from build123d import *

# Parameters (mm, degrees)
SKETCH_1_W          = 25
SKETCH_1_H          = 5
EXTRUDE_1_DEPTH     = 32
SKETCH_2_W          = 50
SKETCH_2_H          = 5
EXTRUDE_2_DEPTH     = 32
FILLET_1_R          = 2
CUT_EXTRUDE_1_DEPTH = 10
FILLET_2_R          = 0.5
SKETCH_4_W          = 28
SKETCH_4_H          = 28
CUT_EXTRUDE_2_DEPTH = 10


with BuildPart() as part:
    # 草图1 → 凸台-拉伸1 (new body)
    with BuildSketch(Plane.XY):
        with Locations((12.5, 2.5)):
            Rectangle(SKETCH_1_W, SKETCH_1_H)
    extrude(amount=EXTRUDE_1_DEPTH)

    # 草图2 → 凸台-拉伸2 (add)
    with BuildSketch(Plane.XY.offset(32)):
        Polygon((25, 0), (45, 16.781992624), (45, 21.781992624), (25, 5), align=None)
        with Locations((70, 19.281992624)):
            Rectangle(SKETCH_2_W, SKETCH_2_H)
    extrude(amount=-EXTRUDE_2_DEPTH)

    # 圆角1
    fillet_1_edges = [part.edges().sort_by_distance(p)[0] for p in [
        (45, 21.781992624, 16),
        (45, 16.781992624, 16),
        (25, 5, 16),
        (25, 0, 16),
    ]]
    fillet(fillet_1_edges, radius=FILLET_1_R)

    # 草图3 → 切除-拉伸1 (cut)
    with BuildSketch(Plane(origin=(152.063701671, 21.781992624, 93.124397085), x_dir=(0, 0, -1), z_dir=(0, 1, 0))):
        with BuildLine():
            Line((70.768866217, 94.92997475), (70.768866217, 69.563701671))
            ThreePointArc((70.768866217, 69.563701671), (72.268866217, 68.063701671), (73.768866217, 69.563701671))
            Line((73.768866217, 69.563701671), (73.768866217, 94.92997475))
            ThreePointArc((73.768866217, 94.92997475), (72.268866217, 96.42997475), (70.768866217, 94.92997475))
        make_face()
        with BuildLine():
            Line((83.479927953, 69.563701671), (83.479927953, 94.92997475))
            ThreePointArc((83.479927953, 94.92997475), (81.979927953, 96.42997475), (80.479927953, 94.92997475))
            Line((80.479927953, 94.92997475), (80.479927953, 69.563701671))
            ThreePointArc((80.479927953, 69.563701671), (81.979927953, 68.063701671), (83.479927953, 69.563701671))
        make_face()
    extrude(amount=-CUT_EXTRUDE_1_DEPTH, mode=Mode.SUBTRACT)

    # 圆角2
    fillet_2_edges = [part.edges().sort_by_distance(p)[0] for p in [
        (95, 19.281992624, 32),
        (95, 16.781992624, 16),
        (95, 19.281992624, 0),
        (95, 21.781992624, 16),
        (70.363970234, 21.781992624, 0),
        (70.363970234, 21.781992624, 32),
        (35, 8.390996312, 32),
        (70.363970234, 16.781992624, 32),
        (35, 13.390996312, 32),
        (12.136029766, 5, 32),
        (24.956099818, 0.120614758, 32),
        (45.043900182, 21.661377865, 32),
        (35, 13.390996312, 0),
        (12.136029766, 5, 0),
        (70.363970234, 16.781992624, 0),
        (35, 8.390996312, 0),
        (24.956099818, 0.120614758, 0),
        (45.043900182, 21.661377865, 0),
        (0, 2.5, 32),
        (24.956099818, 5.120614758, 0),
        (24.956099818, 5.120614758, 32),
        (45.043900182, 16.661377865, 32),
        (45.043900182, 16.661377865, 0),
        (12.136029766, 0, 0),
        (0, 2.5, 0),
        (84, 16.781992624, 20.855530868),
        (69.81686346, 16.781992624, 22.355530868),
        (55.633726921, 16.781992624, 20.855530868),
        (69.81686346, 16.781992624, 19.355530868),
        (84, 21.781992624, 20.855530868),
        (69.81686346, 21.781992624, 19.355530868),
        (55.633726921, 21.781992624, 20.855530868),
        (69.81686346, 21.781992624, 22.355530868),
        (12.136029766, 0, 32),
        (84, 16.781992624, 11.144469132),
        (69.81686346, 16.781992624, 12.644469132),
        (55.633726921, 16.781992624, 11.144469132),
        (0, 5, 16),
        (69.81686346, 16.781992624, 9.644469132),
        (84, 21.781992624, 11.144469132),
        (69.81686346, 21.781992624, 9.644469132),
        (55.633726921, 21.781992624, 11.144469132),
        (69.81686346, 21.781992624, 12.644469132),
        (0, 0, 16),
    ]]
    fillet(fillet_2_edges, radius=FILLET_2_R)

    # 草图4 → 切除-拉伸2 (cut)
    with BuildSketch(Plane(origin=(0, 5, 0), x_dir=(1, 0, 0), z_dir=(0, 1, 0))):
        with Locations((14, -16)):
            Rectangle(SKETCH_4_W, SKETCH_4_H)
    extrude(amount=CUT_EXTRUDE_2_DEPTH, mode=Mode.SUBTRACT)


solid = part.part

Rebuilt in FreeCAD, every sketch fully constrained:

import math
import FreeCAD as App
import Part
import Sketcher

V = App.Vector
Q = App.Units.Quantity


def edges_at(feature, points):
    """Names of the edges that pass closest to the given points."""
    edges = feature.Shape.Edges
    near = lambda p: min(range(len(edges)), key=lambda i: edges[i].distToShape(Part.Vertex(*p))[0])
    return sorted({f"Edge{near(p) + 1}" for p in points})

doc = App.newDocument("Part")
body = doc.addObject("PartDesign::Body", "Body")

# Sketch on XY plane
sketch1 = body.newObject("Sketcher::SketchObject", "Sketch")
sketch1.AttachmentSupport = (doc.getObject("XY_Plane"), [""])
sketch1.MapMode = "FlatFace"
sketch1.addGeometry(Part.LineSegment(V(0, 5, 0), V(0, 0, 0)), False)
sketch1.addGeometry(Part.LineSegment(V(0, 0, 0), V(25, 0, 0)), False)
sketch1.addGeometry(Part.LineSegment(V(25, 0, 0), V(25, 5, 0)), False)
sketch1.addGeometry(Part.LineSegment(V(25, 5, 0), V(0, 5, 0)), False)
sketch1.addConstraint(Sketcher.Constraint("Coincident", 0, 2, 1, 1))
sketch1.addConstraint(Sketcher.Constraint("Coincident", 1, 2, 2, 1))
sketch1.addConstraint(Sketcher.Constraint("Coincident", 2, 2, 3, 1))
sketch1.addConstraint(Sketcher.Constraint("Coincident", 3, 2, 0, 1))
sketch1.addConstraint(Sketcher.Constraint("Vertical", 0))
sketch1.addConstraint(Sketcher.Constraint("Horizontal", 1))
sketch1.addConstraint(Sketcher.Constraint("Vertical", 2))
sketch1.addConstraint(Sketcher.Constraint("Horizontal", 3))
sketch1.addConstraint(Sketcher.Constraint("Coincident", 0, 2, -1, 1))
sketch1.addConstraint(Sketcher.Constraint("DistanceX", 1, 1, 1, 2, 25.0))
sketch1.addConstraint(Sketcher.Constraint("DistanceY", 0, 2, 0, 1, 5.0))
pad1 = body.newObject("PartDesign::Pad", "Pad")
pad1.Profile = sketch1
pad1.Length = 32

# Sketch on XY plane
sketch2 = body.newObject("Sketcher::SketchObject", "Sketch001")
sketch2.AttachmentSupport = (doc.getObject("XY_Plane"), [""])
sketch2.MapMode = "FlatFace"
sketch2.AttachmentOffset = App.Placement(V(0, 0, 32), App.Rotation())
sketch2.addGeometry(Part.LineSegment(V(25, 0, 0), V(45, 17, 0)), False)
sketch2.addGeometry(Part.LineSegment(V(45, 17, 0), V(95, 17, 0)), False)
sketch2.addGeometry(Part.LineSegment(V(95, 17, 0), V(95, 22, 0)), False)
sketch2.addGeometry(Part.LineSegment(V(95, 22, 0), V(45, 22, 0)), False)
sketch2.addGeometry(Part.LineSegment(V(45, 22, 0), V(25, 5, 0)), False)
sketch2.addGeometry(Part.LineSegment(V(25, 5, 0), V(25, 0, 0)), False)
sketch2.addConstraint(Sketcher.Constraint("Coincident", 0, 2, 1, 1))
sketch2.addConstraint(Sketcher.Constraint("Coincident", 1, 2, 2, 1))
sketch2.addConstraint(Sketcher.Constraint("Coincident", 2, 2, 3, 1))
sketch2.addConstraint(Sketcher.Constraint("Coincident", 3, 2, 4, 1))
sketch2.addConstraint(Sketcher.Constraint("Coincident", 4, 2, 5, 1))
sketch2.addConstraint(Sketcher.Constraint("Coincident", 5, 2, 0, 1))
sketch2.addConstraint(Sketcher.Constraint("Horizontal", 1))
sketch2.addConstraint(Sketcher.Constraint("Vertical", 2))
sketch2.addConstraint(Sketcher.Constraint("Horizontal", 3))
sketch2.addConstraint(Sketcher.Constraint("Vertical", 5))
sketch2.addConstraint(Sketcher.Constraint("PointOnObject", 5, 2, -1))
sketch2.addConstraint(Sketcher.Constraint("Parallel", 0, 4))
sketch2.addConstraint(Sketcher.Constraint("Vertical", 0, 2, 3, 2))
sketch2.addConstraint(Sketcher.Constraint("DistanceX", 1, 1, 1, 2, 50.0))
sketch2.addConstraint(Sketcher.Constraint("DistanceY", 2, 1, 2, 2, 5.0))
sketch2.addConstraint(Sketcher.Constraint("Angle", 0, Q("40 deg")))
sketch2.addConstraint(Sketcher.Constraint("DistanceX", -1, 1, 0, 2, 45.0))
sketch2.addConstraint(Sketcher.Constraint("DistanceX", -1, 1, 4, 2, 25.0))
pad2 = body.newObject("PartDesign::Pad", "Pad001")
pad2.Profile = sketch2
pad2.Length = 32
pad2.Reversed = True
doc.recompute()

fillet = body.newObject("PartDesign::Fillet", "Fillet")
fillet.Base = (pad2, edges_at(pad2, [
    (45, 21.782, 16),
    (45, 16.782, 16),
    (25, 5, 16),
    (25, 0, 16),
]))
fillet.Radius = 2

# Sketch on XZ plane
sketch3 = body.newObject("Sketcher::SketchObject", "Sketch002")
sketch3.AttachmentSupport = (doc.getObject("XZ_Plane"), [""])
sketch3.MapMode = "FlatFace"
sketch3.AttachmentOffset = App.Placement(V(0, 0, -21.781993), App.Rotation())
sketch3.addGeometry(Part.LineSegment(V(57.1, 22.4, 0), V(82.5, 22.4, 0)), False)
sketch3.addGeometry(Part.ArcOfCircle(Part.Circle(V(82.5, 20.9, 0), V(0, 0, 1), 1.5), math.radians(-90), math.radians(90)), False)
sketch3.addGeometry(Part.LineSegment(V(82.5, 19.4, 0), V(57.1, 19.4, 0)), False)
sketch3.addGeometry(Part.ArcOfCircle(Part.Circle(V(57.1, 20.9, 0), V(0, 0, 1), 1.5), math.radians(90), math.radians(270)), False)
sketch3.addGeometry(Part.LineSegment(V(82.5, 9.6, 0), V(57.1, 9.6, 0)), False)
sketch3.addGeometry(Part.ArcOfCircle(Part.Circle(V(57.1, 11.1, 0), V(0, 0, 1), 1.5), math.radians(90), math.radians(270)), False)
sketch3.addGeometry(Part.LineSegment(V(57.1, 12.6, 0), V(82.5, 12.6, 0)), False)
sketch3.addGeometry(Part.ArcOfCircle(Part.Circle(V(82.5, 11.1, 0), V(0, 0, 1), 1.5), math.radians(-90), math.radians(90)), False)
sketch3.addConstraint(Sketcher.Constraint("Tangent", 0, 2, 1, 2))
sketch3.addConstraint(Sketcher.Constraint("Tangent", 1, 1, 2, 1))
sketch3.addConstraint(Sketcher.Constraint("Tangent", 2, 2, 3, 2))
sketch3.addConstraint(Sketcher.Constraint("Tangent", 3, 1, 0, 1))
sketch3.addConstraint(Sketcher.Constraint("Tangent", 4, 2, 5, 2))
sketch3.addConstraint(Sketcher.Constraint("Tangent", 5, 1, 6, 1))
sketch3.addConstraint(Sketcher.Constraint("Tangent", 6, 2, 7, 2))
sketch3.addConstraint(Sketcher.Constraint("Tangent", 7, 1, 4, 1))
sketch3.addConstraint(Sketcher.Constraint("Horizontal", 0))
sketch3.addConstraint(Sketcher.Constraint("Horizontal", 2))
sketch3.addConstraint(Sketcher.Constraint("Horizontal", 4))
sketch3.addConstraint(Sketcher.Constraint("Horizontal", 6))
sketch3.addConstraint(Sketcher.Constraint("Equal", 3, 5))
sketch3.addConstraint(Sketcher.Constraint("Vertical", 3, 3, 5, 3))
sketch3.addConstraint(Sketcher.Constraint("Vertical", 1, 3, 7, 3))
sketch3.addConstraint(Sketcher.Constraint("Radius", 1, 1.5))
sketch3.addConstraint(Sketcher.Constraint("DistanceX", -1, 1, 1, 3, 82.5))
sketch3.addConstraint(Sketcher.Constraint("DistanceX", 0, 1, 0, 2, 25.366273))
sketch3.addConstraint(Sketcher.Constraint("DistanceY", -1, 1, 1, 3, 20.855531))
sketch3.addConstraint(Sketcher.Constraint("DistanceY", -1, 1, 5, 3, 11.144469))
pocket1 = body.newObject("PartDesign::Pocket", "Pocket")
pocket1.Profile = sketch3
pocket1.Length = 10
pocket1.Reversed = True
doc.recompute()

fillet2 = body.newObject("PartDesign::Fillet", "Fillet001")
fillet2.Base = (pocket1, ["Edge1"])
fillet2.UseAllEdges = True
fillet2.Radius = 0.5

# Sketch on XZ plane
sketch4 = body.newObject("Sketcher::SketchObject", "Sketch003")
sketch4.AttachmentSupport = (doc.getObject("XZ_Plane"), [""])
sketch4.MapMode = "FlatFace"
sketch4.AttachmentOffset = App.Placement(V(0, 0, -5), App.Rotation())
sketch4.addGeometry(Part.LineSegment(V(0, 2, 0), V(0, 30, 0)), False)
sketch4.addGeometry(Part.LineSegment(V(0, 30, 0), V(28, 30, 0)), False)
sketch4.addGeometry(Part.LineSegment(V(28, 30, 0), V(28, 2, 0)), False)
sketch4.addGeometry(Part.LineSegment(V(28, 2, 0), V(0, 2, 0)), False)
sketch4.addConstraint(Sketcher.Constraint("Coincident", 0, 2, 1, 1))
sketch4.addConstraint(Sketcher.Constraint("Coincident", 1, 2, 2, 1))
sketch4.addConstraint(Sketcher.Constraint("Coincident", 2, 2, 3, 1))
sketch4.addConstraint(Sketcher.Constraint("Coincident", 3, 2, 0, 1))
sketch4.addConstraint(Sketcher.Constraint("Vertical", 0))
sketch4.addConstraint(Sketcher.Constraint("Horizontal", 1))
sketch4.addConstraint(Sketcher.Constraint("Vertical", 2))
sketch4.addConstraint(Sketcher.Constraint("Horizontal", 3))
sketch4.addConstraint(Sketcher.Constraint("PointOnObject", 0, 2, -2))
sketch4.addConstraint(Sketcher.Constraint("Equal", 3, 0))
sketch4.addConstraint(Sketcher.Constraint("DistanceX", 1, 1, 1, 2, 28.0))
sketch4.addConstraint(Sketcher.Constraint("DistanceY", -1, 1, 0, 2, 30.0))
pocket2 = body.newObject("PartDesign::Pocket", "Pocket001")
pocket2.Profile = sketch4
pocket2.Length = 10

doc.recompute()
